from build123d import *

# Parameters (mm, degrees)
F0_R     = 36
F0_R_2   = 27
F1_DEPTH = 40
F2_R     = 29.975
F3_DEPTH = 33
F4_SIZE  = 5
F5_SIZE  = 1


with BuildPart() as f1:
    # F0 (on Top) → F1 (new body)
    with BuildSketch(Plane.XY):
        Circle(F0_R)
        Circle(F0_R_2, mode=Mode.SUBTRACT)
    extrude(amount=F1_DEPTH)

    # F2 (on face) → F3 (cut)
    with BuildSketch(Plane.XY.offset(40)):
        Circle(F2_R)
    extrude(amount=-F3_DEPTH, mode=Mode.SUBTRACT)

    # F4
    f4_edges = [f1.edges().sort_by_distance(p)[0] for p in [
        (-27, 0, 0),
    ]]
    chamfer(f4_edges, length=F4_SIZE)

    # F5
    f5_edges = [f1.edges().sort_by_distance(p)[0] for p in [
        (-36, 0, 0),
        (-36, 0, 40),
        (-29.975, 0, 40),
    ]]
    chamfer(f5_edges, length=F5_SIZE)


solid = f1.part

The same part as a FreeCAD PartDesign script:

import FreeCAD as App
import Part
import Sketcher

V = App.Vector


def edges_at(feature, points):
    """Names of the edges that pass closest to the given points."""
    edges = feature.Shape.Edges
    near = lambda p: min(range(len(edges)), key=lambda i: edges[i].distToShape(Part.Vertex(*p))[0])
    return sorted({f"Edge{near(p) + 1}" for p in points})

doc = App.newDocument("Part")
body = doc.addObject("PartDesign::Body", "Body")

sketch1 = doc.addObject("Sketcher::SketchObject", "Sketch")
body.addObject(sketch1)
sketch1.AttachmentSupport = (doc.XY_Plane, [""])
sketch1.MapMode = "FlatFace"
sketch1.addGeometry(Part.Circle(V(0, 0, 0), V(0, 0, 1), 36), False)
sketch1.addGeometry(Part.Circle(V(0, 0, 0), V(0, 0, 1), 27), False)
sketch1.addConstraint(Sketcher.Constraint("Coincident", 0, 3, -1, 1))
sketch1.addConstraint(Sketcher.Constraint("Coincident", 1, 3, -1, 1))
sketch1.addConstraint(Sketcher.Constraint("Diameter", 0, 72.0))
sketch1.addConstraint(Sketcher.Constraint("Diameter", 1, 54.0))
pad1 = doc.addObject("PartDesign::Pad", "Pad")
body.addObject(pad1)
pad1.Profile = sketch1
pad1.Length = 40

sketch2 = doc.addObject("Sketcher::SketchObject", "Sketch001")
body.addObject(sketch2)
sketch2.AttachmentSupport = (doc.XY_Plane, [""])
sketch2.MapMode = "FlatFace"
sketch2.AttachmentOffset = App.Placement(V(0, 0, 40), App.Rotation())
sketch2.addGeometry(Part.Circle(V(0, 0, 0), V(0, 0, 1), 29.975), False)
sketch2.addConstraint(Sketcher.Constraint("Coincident", 0, 3, -1, 1))
sketch2.addConstraint(Sketcher.Constraint("Diameter", 0, 59.95))
pocket1 = doc.addObject("PartDesign::Pocket", "Pocket")
body.addObject(pocket1)
pocket1.Profile = sketch2
pocket1.Length = 33
doc.recompute()

chamfer = doc.addObject("PartDesign::Chamfer", "Chamfer")
body.addObject(chamfer)
chamfer.Base = (pocket1, edges_at(pocket1, [(-27, 0, 0)]))
chamfer.Size = 5
doc.recompute()

chamfer2 = doc.addObject("PartDesign::Chamfer", "Chamfer001")
body.addObject(chamfer2)
chamfer2.Base = (chamfer, edges_at(chamfer, [(-36, 0, 0), (-36, 0, 40), (-29.975, 0, 40)]))
chamfer2.Size = 1

doc.recompute()
